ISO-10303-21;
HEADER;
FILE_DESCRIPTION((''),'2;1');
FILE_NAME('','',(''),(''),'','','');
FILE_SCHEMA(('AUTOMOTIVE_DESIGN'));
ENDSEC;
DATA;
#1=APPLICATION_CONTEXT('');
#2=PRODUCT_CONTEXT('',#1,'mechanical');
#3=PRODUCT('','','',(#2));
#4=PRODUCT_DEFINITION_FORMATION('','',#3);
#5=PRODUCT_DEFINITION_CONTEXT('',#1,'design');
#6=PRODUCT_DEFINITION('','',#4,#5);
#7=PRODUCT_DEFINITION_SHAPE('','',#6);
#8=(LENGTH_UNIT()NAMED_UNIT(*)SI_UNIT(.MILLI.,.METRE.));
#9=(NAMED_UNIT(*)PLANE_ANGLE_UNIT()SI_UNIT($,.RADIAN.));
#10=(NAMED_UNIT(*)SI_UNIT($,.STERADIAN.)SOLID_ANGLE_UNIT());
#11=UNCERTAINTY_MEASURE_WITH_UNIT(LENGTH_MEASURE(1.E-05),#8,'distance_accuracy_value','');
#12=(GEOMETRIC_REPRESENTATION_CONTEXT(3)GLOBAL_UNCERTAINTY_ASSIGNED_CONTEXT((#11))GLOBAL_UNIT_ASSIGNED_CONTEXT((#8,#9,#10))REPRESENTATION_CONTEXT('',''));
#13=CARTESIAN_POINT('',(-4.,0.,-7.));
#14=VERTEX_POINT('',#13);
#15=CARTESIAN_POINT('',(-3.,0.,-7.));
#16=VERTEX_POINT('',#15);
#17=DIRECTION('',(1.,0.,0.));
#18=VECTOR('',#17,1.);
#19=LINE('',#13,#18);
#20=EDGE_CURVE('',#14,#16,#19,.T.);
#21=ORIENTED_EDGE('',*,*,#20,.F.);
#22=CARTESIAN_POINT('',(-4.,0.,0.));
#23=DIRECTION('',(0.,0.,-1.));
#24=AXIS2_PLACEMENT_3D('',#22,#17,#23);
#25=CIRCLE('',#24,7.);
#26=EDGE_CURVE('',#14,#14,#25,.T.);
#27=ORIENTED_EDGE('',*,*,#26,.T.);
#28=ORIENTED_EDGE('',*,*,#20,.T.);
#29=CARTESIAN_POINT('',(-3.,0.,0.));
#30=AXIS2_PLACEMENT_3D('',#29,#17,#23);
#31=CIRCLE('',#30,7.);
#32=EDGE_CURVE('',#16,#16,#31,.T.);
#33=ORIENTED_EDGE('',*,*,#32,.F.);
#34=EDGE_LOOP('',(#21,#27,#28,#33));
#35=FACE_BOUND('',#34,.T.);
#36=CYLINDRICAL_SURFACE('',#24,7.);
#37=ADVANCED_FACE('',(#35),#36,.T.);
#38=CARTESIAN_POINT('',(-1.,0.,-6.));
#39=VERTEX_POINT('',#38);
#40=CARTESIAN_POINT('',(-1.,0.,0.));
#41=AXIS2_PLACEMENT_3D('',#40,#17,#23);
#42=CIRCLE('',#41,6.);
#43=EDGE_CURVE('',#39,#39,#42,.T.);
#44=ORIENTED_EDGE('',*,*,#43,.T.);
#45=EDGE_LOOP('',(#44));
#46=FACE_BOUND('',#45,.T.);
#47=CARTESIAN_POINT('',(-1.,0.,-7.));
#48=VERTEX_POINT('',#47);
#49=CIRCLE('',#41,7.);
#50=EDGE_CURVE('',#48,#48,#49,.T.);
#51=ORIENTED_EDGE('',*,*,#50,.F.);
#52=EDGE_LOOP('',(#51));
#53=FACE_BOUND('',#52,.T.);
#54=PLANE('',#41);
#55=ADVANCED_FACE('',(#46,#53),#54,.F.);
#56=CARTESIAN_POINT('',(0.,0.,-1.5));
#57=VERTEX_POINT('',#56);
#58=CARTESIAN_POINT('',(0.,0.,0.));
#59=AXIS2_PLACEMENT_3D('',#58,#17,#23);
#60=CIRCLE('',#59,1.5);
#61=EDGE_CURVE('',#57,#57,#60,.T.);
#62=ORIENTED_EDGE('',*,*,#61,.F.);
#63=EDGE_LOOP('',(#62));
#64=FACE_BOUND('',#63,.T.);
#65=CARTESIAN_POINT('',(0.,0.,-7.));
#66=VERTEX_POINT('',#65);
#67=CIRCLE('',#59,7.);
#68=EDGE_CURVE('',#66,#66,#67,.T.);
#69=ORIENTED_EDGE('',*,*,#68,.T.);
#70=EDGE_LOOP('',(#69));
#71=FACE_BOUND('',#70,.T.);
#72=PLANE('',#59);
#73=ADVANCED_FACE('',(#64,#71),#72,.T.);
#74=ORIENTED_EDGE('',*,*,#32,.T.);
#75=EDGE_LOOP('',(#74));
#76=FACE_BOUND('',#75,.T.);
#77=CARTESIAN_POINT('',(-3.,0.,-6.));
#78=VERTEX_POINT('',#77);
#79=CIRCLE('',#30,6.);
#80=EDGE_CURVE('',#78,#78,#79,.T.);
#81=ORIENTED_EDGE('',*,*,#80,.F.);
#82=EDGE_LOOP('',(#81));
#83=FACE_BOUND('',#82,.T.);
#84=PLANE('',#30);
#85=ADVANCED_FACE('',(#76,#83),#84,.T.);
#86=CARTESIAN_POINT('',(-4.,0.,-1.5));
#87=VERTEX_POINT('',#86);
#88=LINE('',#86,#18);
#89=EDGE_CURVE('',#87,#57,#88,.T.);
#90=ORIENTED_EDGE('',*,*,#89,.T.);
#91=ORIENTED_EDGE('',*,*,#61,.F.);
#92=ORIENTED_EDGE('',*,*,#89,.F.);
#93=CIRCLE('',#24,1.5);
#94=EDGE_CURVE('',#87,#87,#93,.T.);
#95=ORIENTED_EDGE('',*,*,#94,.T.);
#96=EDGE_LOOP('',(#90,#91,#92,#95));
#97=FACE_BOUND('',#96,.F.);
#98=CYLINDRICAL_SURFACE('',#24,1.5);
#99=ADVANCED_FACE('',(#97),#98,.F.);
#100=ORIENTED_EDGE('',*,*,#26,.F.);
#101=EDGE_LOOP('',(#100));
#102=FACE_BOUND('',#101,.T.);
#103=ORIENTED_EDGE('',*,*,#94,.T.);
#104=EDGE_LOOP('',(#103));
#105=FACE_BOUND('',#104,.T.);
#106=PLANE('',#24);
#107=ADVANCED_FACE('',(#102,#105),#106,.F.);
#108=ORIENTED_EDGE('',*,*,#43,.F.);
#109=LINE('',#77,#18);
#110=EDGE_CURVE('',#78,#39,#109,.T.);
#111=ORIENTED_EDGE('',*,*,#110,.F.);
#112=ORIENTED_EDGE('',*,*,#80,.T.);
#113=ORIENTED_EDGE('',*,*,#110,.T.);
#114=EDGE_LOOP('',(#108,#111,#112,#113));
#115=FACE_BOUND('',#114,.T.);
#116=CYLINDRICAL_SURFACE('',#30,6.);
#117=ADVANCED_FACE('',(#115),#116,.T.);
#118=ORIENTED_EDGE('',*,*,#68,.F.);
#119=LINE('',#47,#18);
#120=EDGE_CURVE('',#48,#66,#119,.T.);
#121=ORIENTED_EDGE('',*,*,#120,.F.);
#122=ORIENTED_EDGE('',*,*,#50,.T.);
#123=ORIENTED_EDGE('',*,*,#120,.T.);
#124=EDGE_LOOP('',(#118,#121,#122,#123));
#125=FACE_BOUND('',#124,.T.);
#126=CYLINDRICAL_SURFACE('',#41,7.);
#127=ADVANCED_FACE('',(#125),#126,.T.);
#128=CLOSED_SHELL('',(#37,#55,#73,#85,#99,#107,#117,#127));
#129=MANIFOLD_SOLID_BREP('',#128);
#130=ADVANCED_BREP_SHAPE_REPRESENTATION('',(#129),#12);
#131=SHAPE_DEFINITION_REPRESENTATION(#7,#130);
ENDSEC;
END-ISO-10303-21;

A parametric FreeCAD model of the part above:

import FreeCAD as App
import Part
import Sketcher
Q = App.Units.Quantity


def add_polygon(sketch, points):
    """Adds a closed chain of lines whose ends are joined by coincident constraints."""
    first, n = sketch.GeometryCount, len(points)
    for a, b in zip(points, points[1:] + points[:1]):
        sketch.addGeometry(Part.LineSegment(App.Vector(*a, 0), App.Vector(*b, 0)), False)
    for i in range(n):
        sketch.addConstraint(Sketcher.Constraint("Coincident", first + i, 2, first + (i + 1) % n, 1))

doc = App.newDocument("Part")
body = doc.addObject("PartDesign::Body", "Body")

# Sketch on XZ plane
sketch1 = body.newObject("Sketcher::SketchObject", "Sketch")
sketch1.AttachmentSupport = (doc.getObject("XZ_Plane"), [""])
sketch1.MapMode = "FlatFace"
add_polygon(sketch1, [(-4, -7), (-4, -1.5), (0, -1.5), (0, -7), (-1, -7), (-1, -6), (-3, -6), (-3, -7)])  # lines 0-7
sketch1.addConstraint(Sketcher.Constraint("Vertical", 0))
sketch1.addConstraint(Sketcher.Constraint("Horizontal", 1))
sketch1.addConstraint(Sketcher.Constraint("Vertical", 2))
sketch1.addConstraint(Sketcher.Constraint("Horizontal", 3))
sketch1.addConstraint(Sketcher.Constraint("Vertical", 4))
sketch1.addConstraint(Sketcher.Constraint("Horizontal", 5))
sketch1.addConstraint(Sketcher.Constraint("Vertical", 6))
sketch1.addConstraint(Sketcher.Constraint("Horizontal", 7))
sketch1.addConstraint(Sketcher.Constraint("PointOnObject", 1, 2, -2))
sketch1.addConstraint(Sketcher.Constraint("Horizontal", 3, 2, 6, 2))
sketch1.addConstraint(Sketcher.Constraint("Equal", 3, 7))
sketch1.addConstraint(Sketcher.Constraint("Equal", 7, 4))
sketch1.addConstraint(Sketcher.Constraint("DistanceX", 3, 2, 3, 1, Q("1 mm")))
sketch1.addConstraint(Sketcher.Constraint("DistanceX", 5, 2, 5, 1, Q("2 mm")))
sketch1.addConstraint(Sketcher.Constraint("DistanceY", 2, 2, -1, 1, Q("7 mm")))
sketch1.addConstraint(Sketcher.Constraint("DistanceY", 0, 2, -1, 1, Q("1.5 mm")))
revolution = body.newObject("PartDesign::Revolution", "Revolution")
revolution.Profile = sketch1
revolution.ReferenceAxis = (sketch1, ["H_Axis"])
revolution.Angle = 360

doc.recompute()
